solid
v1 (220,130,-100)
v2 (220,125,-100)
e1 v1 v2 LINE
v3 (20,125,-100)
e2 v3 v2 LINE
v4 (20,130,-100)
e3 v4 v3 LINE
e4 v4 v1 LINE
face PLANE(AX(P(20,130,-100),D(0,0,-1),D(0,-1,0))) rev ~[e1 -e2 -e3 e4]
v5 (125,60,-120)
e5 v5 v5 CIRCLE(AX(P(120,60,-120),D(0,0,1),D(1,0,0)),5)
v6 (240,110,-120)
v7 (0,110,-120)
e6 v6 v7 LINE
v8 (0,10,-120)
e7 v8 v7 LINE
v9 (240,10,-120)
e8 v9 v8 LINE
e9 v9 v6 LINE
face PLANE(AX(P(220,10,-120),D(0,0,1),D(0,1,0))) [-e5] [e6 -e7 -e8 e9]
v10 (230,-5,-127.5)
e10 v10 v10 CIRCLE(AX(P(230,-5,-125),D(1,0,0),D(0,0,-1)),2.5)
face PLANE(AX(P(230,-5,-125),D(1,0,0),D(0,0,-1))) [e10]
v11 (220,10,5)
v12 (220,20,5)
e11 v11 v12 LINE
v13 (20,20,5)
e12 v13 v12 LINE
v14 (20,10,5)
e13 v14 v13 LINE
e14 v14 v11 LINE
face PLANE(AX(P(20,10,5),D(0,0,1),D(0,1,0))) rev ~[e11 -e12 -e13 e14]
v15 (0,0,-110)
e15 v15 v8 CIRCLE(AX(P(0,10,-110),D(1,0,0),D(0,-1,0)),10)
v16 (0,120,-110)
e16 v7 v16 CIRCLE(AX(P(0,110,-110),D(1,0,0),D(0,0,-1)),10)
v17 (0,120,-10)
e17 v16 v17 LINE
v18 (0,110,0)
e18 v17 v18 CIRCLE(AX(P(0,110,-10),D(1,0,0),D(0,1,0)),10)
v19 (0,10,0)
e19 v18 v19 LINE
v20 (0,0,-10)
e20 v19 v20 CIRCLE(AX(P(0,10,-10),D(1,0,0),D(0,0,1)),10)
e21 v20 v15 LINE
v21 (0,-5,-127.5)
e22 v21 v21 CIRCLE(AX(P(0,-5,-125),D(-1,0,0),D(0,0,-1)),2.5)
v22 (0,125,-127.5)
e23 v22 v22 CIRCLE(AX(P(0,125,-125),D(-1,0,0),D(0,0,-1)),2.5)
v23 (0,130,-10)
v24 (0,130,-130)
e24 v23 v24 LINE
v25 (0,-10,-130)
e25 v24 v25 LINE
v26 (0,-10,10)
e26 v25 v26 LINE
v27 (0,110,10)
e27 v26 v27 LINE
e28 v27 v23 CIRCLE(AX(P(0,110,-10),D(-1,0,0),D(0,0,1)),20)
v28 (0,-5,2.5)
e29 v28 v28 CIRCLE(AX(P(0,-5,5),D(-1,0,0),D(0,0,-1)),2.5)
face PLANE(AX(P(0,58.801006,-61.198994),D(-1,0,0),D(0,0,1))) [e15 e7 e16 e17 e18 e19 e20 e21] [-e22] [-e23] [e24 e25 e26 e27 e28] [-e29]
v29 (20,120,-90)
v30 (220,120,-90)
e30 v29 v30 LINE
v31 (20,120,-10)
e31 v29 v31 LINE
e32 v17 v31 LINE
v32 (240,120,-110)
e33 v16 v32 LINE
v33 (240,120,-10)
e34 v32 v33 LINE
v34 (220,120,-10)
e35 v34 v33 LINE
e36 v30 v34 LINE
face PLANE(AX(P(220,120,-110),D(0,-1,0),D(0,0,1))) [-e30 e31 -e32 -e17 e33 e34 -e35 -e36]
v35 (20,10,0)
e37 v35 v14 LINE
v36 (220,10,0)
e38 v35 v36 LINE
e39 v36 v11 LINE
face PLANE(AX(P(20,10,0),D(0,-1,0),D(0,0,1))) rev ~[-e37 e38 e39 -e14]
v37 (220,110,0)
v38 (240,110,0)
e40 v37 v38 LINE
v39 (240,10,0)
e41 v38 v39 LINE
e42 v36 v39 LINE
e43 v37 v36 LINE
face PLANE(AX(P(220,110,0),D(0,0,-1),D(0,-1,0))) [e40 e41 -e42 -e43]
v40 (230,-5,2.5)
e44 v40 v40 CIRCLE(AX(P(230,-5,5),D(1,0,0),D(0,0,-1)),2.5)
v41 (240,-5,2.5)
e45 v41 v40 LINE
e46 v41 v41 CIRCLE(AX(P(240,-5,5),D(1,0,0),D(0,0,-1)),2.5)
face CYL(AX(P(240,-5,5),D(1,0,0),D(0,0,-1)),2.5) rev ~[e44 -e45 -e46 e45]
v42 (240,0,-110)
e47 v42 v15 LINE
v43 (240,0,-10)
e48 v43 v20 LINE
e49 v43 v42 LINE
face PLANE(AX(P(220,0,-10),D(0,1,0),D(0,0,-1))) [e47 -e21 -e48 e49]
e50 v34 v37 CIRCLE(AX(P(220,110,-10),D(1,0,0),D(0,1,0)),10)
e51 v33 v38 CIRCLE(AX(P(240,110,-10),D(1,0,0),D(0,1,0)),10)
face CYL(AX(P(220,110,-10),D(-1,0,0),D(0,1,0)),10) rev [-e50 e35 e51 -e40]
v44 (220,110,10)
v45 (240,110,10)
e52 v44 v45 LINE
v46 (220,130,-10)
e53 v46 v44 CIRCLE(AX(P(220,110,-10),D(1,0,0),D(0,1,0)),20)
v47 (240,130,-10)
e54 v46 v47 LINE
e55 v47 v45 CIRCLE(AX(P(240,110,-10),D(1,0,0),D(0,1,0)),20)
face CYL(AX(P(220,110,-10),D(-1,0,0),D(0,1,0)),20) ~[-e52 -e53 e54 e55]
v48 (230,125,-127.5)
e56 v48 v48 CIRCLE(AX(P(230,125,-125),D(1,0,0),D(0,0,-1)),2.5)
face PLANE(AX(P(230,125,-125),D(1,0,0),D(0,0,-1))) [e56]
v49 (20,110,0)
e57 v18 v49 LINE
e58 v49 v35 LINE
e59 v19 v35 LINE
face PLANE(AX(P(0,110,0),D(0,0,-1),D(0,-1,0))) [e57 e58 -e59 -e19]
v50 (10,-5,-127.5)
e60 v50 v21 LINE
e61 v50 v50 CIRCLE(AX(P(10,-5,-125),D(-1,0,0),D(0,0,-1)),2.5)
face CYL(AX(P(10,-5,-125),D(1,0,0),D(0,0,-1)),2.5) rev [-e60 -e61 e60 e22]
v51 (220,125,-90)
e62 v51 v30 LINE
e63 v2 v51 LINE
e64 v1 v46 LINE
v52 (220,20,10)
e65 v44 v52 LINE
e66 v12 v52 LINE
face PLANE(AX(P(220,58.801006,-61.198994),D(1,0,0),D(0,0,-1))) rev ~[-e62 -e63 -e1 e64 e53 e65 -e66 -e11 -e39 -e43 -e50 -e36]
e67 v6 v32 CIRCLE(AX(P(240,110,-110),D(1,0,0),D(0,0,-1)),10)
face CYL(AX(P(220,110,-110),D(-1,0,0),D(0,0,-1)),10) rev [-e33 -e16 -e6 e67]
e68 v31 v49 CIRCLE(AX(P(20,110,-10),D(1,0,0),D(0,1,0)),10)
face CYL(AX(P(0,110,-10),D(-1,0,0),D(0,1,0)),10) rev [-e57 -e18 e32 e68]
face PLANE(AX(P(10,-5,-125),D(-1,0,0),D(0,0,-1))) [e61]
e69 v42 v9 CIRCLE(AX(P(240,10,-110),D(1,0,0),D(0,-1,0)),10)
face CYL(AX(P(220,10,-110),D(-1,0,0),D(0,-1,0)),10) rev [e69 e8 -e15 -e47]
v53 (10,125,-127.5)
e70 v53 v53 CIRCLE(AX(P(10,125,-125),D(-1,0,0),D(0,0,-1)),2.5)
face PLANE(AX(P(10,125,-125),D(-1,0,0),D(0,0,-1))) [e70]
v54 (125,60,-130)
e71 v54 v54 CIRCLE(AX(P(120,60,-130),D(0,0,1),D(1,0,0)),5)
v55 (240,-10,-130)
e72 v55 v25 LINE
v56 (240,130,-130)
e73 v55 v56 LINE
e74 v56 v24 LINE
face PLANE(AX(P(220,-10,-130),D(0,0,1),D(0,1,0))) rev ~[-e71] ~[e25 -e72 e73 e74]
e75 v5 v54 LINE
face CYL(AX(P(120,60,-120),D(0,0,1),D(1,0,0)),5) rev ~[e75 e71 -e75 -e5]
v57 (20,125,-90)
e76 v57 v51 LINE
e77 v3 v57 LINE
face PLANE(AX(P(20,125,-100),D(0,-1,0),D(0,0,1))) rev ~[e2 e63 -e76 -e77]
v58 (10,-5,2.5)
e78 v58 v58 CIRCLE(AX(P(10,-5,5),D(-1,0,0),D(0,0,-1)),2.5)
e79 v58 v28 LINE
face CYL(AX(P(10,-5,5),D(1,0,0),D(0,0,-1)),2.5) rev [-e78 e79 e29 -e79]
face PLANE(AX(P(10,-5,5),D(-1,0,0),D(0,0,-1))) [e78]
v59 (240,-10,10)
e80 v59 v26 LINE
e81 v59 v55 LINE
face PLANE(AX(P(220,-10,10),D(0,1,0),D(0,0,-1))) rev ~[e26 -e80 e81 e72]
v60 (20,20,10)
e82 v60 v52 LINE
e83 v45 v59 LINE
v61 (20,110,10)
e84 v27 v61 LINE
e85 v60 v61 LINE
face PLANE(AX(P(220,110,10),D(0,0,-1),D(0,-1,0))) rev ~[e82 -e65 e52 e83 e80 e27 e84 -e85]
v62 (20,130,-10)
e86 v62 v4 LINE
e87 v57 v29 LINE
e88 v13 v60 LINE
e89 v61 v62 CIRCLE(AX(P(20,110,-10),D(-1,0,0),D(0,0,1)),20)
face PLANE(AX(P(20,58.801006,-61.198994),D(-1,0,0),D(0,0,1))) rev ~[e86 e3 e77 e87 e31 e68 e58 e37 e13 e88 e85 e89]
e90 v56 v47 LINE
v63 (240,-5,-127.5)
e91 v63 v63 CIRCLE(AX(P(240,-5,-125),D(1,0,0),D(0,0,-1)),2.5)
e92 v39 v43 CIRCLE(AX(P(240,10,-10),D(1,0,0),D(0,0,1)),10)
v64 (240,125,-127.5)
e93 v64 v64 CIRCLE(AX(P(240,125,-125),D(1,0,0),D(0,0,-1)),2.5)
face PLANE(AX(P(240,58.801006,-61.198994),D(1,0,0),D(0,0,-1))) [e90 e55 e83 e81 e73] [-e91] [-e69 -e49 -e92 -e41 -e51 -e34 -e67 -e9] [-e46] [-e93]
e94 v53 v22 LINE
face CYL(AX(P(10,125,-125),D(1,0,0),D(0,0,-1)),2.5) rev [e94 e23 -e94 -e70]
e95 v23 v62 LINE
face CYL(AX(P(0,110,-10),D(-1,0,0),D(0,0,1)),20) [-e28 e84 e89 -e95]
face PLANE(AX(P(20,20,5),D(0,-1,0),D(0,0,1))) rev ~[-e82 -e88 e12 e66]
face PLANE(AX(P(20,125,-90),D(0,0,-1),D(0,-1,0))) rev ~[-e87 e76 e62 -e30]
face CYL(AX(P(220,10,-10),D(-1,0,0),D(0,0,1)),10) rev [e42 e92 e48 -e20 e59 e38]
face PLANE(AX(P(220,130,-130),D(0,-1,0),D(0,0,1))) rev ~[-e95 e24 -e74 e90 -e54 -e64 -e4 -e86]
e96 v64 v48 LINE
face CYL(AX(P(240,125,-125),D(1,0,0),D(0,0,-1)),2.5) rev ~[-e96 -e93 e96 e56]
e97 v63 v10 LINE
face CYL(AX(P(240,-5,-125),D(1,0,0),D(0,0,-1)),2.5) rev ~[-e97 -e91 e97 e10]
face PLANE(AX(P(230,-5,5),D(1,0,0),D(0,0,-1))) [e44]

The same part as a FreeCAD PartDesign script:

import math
import FreeCAD as App
import Part
import Sketcher
from FreeCAD import Vector

doc = App.newDocument("Part")
body = doc.addObject("PartDesign::Body", "Body")

sketch1 = body.newObject("Sketcher::SketchObject", "Sketch")
sketch1.AttachmentSupport = (doc.getObject("YZ_Plane"), [""])
sketch1.MapMode = "FlatFace"
sketch1.addGeometry(Part.LineSegment(Vector(130, -130, 0), Vector(130, -10, 0)), False)
sketch1.addGeometry(Part.ArcOfCircle(Part.Circle(Vector(110, -10, 0), Vector(0, 0, 1), 20), math.radians(0), math.radians(90)), False)
sketch1.addGeometry(Part.LineSegment(Vector(110, 10, 0), Vector(-10, 10, 0)), False)
sketch1.addGeometry(Part.LineSegment(Vector(-10, 10, 0), Vector(-10, -130, 0)), False)
sketch1.addGeometry(Part.LineSegment(Vector(-10, -130, 0), Vector(130, -130, 0)), False)
sketch1.addGeometry(Part.ArcOfCircle(Part.Circle(Vector(10, -10, 0), Vector(0, 0, 1), 10), math.radians(90), math.radians(180)), False)
sketch1.addGeometry(Part.LineSegment(Vector(10, 0, 0), Vector(110, 0, 0)), False)
sketch1.addGeometry(Part.ArcOfCircle(Part.Circle(Vector(110, -10, 0), Vector(0, 0, 1), 10), math.radians(0), math.radians(90)), False)
sketch1.addGeometry(Part.LineSegment(Vector(120, -10, 0), Vector(120, -110, 0)), False)
sketch1.addGeometry(Part.ArcOfCircle(Part.Circle(Vector(110, -110, 0), Vector(0, 0, 1), 10), math.radians(-90), math.radians(0)), False)
sketch1.addGeometry(Part.LineSegment(Vector(110, -120, 0), Vector(10, -120, 0)), False)
sketch1.addGeometry(Part.ArcOfCircle(Part.Circle(Vector(10, -110, 0), Vector(0, 0, 1), 10), math.radians(180), math.radians(270)), False)
sketch1.addGeometry(Part.LineSegment(Vector(0, -110, 0), Vector(0, -10, 0)), False)
sketch1.addConstraint(Sketcher.Constraint("Tangent", 0, 2, 1, 1))
sketch1.addConstraint(Sketcher.Constraint("Tangent", 1, 2, 2, 1))
sketch1.addConstraint(Sketcher.Constraint("Coincident", 2, 2, 3, 1))
sketch1.addConstraint(Sketcher.Constraint("Coincident", 3, 2, 4, 1))
sketch1.addConstraint(Sketcher.Constraint("Coincident", 4, 2, 0, 1))
sketch1.addConstraint(Sketcher.Constraint("Tangent", 5, 1, 6, 1))
sketch1.addConstraint(Sketcher.Constraint("Tangent", 6, 2, 7, 2))
sketch1.addConstraint(Sketcher.Constraint("Tangent", 7, 1, 8, 1))
sketch1.addConstraint(Sketcher.Constraint("Tangent", 8, 2, 9, 2))
sketch1.addConstraint(Sketcher.Constraint("Tangent", 9, 1, 10, 1))
sketch1.addConstraint(Sketcher.Constraint("Tangent", 10, 2, 11, 2))
sketch1.addConstraint(Sketcher.Constraint("Tangent", 11, 1, 12, 1))
sketch1.addConstraint(Sketcher.Constraint("Tangent", 12, 2, 5, 2))
sketch1.addConstraint(Sketcher.Constraint("Vertical", 0))
sketch1.addConstraint(Sketcher.Constraint("Horizontal", 2))
sketch1.addConstraint(Sketcher.Constraint("Vertical", 3))
sketch1.addConstraint(Sketcher.Constraint("Horizontal", 4))
sketch1.addConstraint(Sketcher.Constraint("Horizontal", 6))
sketch1.addConstraint(Sketcher.Constraint("Vertical", 8))
sketch1.addConstraint(Sketcher.Constraint("Horizontal", 10))
sketch1.addConstraint(Sketcher.Constraint("Vertical", 12))
sketch1.addConstraint(Sketcher.Constraint("Coincident", 7, 3, 1, 3))
sketch1.addConstraint(Sketcher.Constraint("Equal", 5, 7))
sketch1.addConstraint(Sketcher.Constraint("Equal", 7, 9))
sketch1.addConstraint(Sketcher.Constraint("Equal", 9, 11))
sketch1.addConstraint(Sketcher.Constraint("PointOnObject", 5, 1, -1))
sketch1.addConstraint(Sketcher.Constraint("PointOnObject", 11, 1, -2))
sketch1.addConstraint(Sketcher.Constraint("Equal", 2, 0))
sketch1.addConstraint(Sketcher.Constraint("Equal", 10, 8))
sketch1.addConstraint(Sketcher.Constraint("Radius", 1, 20.0))
sketch1.addConstraint(Sketcher.Constraint("Radius", 5, 10.0))
sketch1.addConstraint(Sketcher.Constraint("DistanceX", 2, 2, 2, 1, 120.0))
sketch1.addConstraint(Sketcher.Constraint("DistanceX", 6, 1, 6, 2, 100.0))
pad1 = body.newObject("PartDesign::Pad", "Pad")
pad1.Profile = sketch1
pad1.Length = 20

sketch2 = body.newObject("Sketcher::SketchObject", "Sketch001")
sketch2.AttachmentSupport = (doc.getObject("YZ_Plane"), [""])
sketch2.MapMode = "FlatFace"
sketch2.AttachmentOffset = App.Placement(Vector(0, 0, 20), App.Rotation())
sketch2.addGeometry(Part.LineSegment(Vector(130, -130, 0), Vector(130, -100, 0)), False)
sketch2.addGeometry(Part.LineSegment(Vector(130, -100, 0), Vector(125, -100, 0)), False)
sketch2.addGeometry(Part.LineSegment(Vector(125, -100, 0), Vector(125, -90, 0)), False)
sketch2.addGeometry(Part.LineSegment(Vector(125, -90, 0), Vector(120, -90, 0)), False)
sketch2.addGeometry(Part.LineSegment(Vector(120, -90, 0), Vector(120, -110, 0)), False)
sketch2.addGeometry(Part.ArcOfCircle(Part.Circle(Vector(110, -110, 0), Vector(0, 0, 1), 10), math.radians(-90), math.radians(0)), False)
sketch2.addGeometry(Part.LineSegment(Vector(110, -120, 0), Vector(10, -120, 0)), False)
sketch2.addGeometry(Part.ArcOfCircle(Part.Circle(Vector(10, -110, 0), Vector(0, 0, 1), 10), math.radians(180), math.radians(270)), False)
sketch2.addGeometry(Part.LineSegment(Vector(0, -110, 0), Vector(0, -10, 0)), False)
sketch2.addGeometry(Part.ArcOfCircle(Part.Circle(Vector(10, -10, 0), Vector(0, 0, 1), 10), math.radians(90), math.radians(180)), False)
sketch2.addGeometry(Part.LineSegment(Vector(10, 0, 0), Vector(10, 5, 0)), False)
sketch2.addGeometry(Part.LineSegment(Vector(10, 5, 0), Vector(20, 5, 0)), False)
sketch2.addGeometry(Part.LineSegment(Vector(20, 5, 0), Vector(20, 10, 0)), False)
sketch2.addGeometry(Part.LineSegment(Vector(20, 10, 0), Vector(-10, 10, 0)), False)
sketch2.addGeometry(Part.LineSegment(Vector(-10, 10, 0), Vector(-10, -130, 0)), False)
sketch2.addGeometry(Part.LineSegment(Vector(-10, -130, 0), Vector(130, -130, 0)), False)
sketch2.addConstraint(Sketcher.Constraint("Coincident", 0, 2, 1, 1))
sketch2.addConstraint(Sketcher.Constraint("Coincident", 1, 2, 2, 1))
sketch2.addConstraint(Sketcher.Constraint("Coincident", 2, 2, 3, 1))
sketch2.addConstraint(Sketcher.Constraint("Coincident", 3, 2, 4, 1))
sketch2.addConstraint(Sketcher.Constraint("Tangent", 4, 2, 5, 2))
sketch2.addConstraint(Sketcher.Constraint("Tangent", 5, 1, 6, 1))
sketch2.addConstraint(Sketcher.Constraint("Tangent", 6, 2, 7, 2))
sketch2.addConstraint(Sketcher.Constraint("Tangent", 7, 1, 8, 1))
sketch2.addConstraint(Sketcher.Constraint("Tangent", 8, 2, 9, 2))
sketch2.addConstraint(Sketcher.Constraint("Coincident", 9, 1, 10, 1))
sketch2.addConstraint(Sketcher.Constraint("Coincident", 10, 2, 11, 1))
sketch2.addConstraint(Sketcher.Constraint("Coincident", 11, 2, 12, 1))
sketch2.addConstraint(Sketcher.Constraint("Coincident", 12, 2, 13, 1))
sketch2.addConstraint(Sketcher.Constraint("Coincident", 13, 2, 14, 1))
sketch2.addConstraint(Sketcher.Constraint("Coincident", 14, 2, 15, 1))
sketch2.addConstraint(Sketcher.Constraint("Coincident", 15, 2, 0, 1))
sketch2.addConstraint(Sketcher.Constraint("Vertical", 0))
sketch2.addConstraint(Sketcher.Constraint("Horizontal", 1))
sketch2.addConstraint(Sketcher.Constraint("Vertical", 2))
sketch2.addConstraint(Sketcher.Constraint("Horizontal", 3))
sketch2.addConstraint(Sketcher.Constraint("Vertical", 4))
sketch2.addConstraint(Sketcher.Constraint("Horizontal", 6))
sketch2.addConstraint(Sketcher.Constraint("Vertical", 8))
sketch2.addConstraint(Sketcher.Constraint("Vertical", 10))
sketch2.addConstraint(Sketcher.Constraint("Horizontal", 11))
sketch2.addConstraint(Sketcher.Constraint("Vertical", 12))
sketch2.addConstraint(Sketcher.Constraint("Horizontal", 13))
sketch2.addConstraint(Sketcher.Constraint("Vertical", 14))
sketch2.addConstraint(Sketcher.Constraint("Horizontal", 15))
sketch2.addConstraint(Sketcher.Constraint("Equal", 5, 7))
sketch2.addConstraint(Sketcher.Constraint("Equal", 7, 9))
sketch2.addConstraint(Sketcher.Constraint("PointOnObject", 7, 1, -2))
sketch2.addConstraint(Sketcher.Constraint("PointOnObject", 9, 1, -1))
sketch2.addConstraint(Sketcher.Constraint("Vertical", 6, 2, 9, 1))
sketch2.addConstraint(Sketcher.Constraint("Equal", 1, 3))
sketch2.addConstraint(Sketcher.Constraint("Equal", 13, 0))
sketch2.addConstraint(Sketcher.Constraint("Equal", 11, 2))
sketch2.addConstraint(Sketcher.Constraint("Equal", 6, 8))
sketch2.addConstraint(Sketcher.Constraint("Equal", 3, 10))
sketch2.addConstraint(Sketcher.Constraint("Equal", 10, 12))
sketch2.addConstraint(Sketcher.Constraint("Equal", 15, 14))
sketch2.addConstraint(Sketcher.Constraint("Radius", 5, 10.0))
sketch2.addConstraint(Sketcher.Constraint("DistanceX", 1, 2, 1, 1, 5.0))
sketch2.addConstraint(Sketcher.Constraint("DistanceX", 6, 2, 6, 1, 100.0))
sketch2.addConstraint(Sketcher.Constraint("DistanceX", 11, 1, 11, 2, 10.0))
sketch2.addConstraint(Sketcher.Constraint("DistanceX", 13, 2, 13, 1, 30.0))
pad2 = body.newObject("PartDesign::Pad", "Pad001")
pad2.Profile = sketch2
pad2.Length = 200

sketch3 = body.newObject("Sketcher::SketchObject", "Sketch002")
sketch3.AttachmentSupport = (doc.getObject("YZ_Plane"), [""])
sketch3.MapMode = "FlatFace"
sketch3.AttachmentOffset = App.Placement(Vector(0, 0, 220), App.Rotation())
sketch3.addGeometry(Part.LineSegment(Vector(130, -130, 0), Vector(130, -10, 0)), False)
sketch3.addGeometry(Part.ArcOfCircle(Part.Circle(Vector(110, -10, 0), Vector(0, 0, 1), 20), math.radians(0), math.radians(90)), False)
sketch3.addGeometry(Part.LineSegment(Vector(110, 10, 0), Vector(-10, 10, 0)), False)
sketch3.addGeometry(Part.LineSegment(Vector(-10, 10, 0), Vector(-10, -130, 0)), False)
sketch3.addGeometry(Part.LineSegment(Vector(-10, -130, 0), Vector(130, -130, 0)), False)
sketch3.addGeometry(Part.LineSegment(Vector(10, 0, 0), Vector(110, 0, 0)), False)
sketch3.addGeometry(Part.ArcOfCircle(Part.Circle(Vector(110, -10, 0), Vector(0, 0, 1), 10), math.radians(0), math.radians(90)), False)
sketch3.addGeometry(Part.LineSegment(Vector(120, -10, 0), Vector(120, -110, 0)), False)
sketch3.addGeometry(Part.ArcOfCircle(Part.Circle(Vector(110, -110, 0), Vector(0, 0, 1), 10), math.radians(-90), math.radians(0)), False)
sketch3.addGeometry(Part.LineSegment(Vector(110, -120, 0), Vector(10, -120, 0)), False)
sketch3.addGeometry(Part.ArcOfCircle(Part.Circle(Vector(10, -110, 0), Vector(0, 0, 1), 10), math.radians(180), math.radians(270)), False)
sketch3.addGeometry(Part.LineSegment(Vector(0, -110, 0), Vector(0, -10, 0)), False)
sketch3.addGeometry(Part.ArcOfCircle(Part.Circle(Vector(10, -10, 0), Vector(0, 0, 1), 10), math.radians(90), math.radians(180)), False)
sketch3.addConstraint(Sketcher.Constraint("Tangent", 0, 2, 1, 1))
sketch3.addConstraint(Sketcher.Constraint("Tangent", 1, 2, 2, 1))
sketch3.addConstraint(Sketcher.Constraint("Coincident", 2, 2, 3, 1))
sketch3.addConstraint(Sketcher.Constraint("Coincident", 3, 2, 4, 1))
sketch3.addConstraint(Sketcher.Constraint("Coincident", 4, 2, 0, 1))
sketch3.addConstraint(Sketcher.Constraint("Tangent", 5, 2, 6, 2))
sketch3.addConstraint(Sketcher.Constraint("Tangent", 6, 1, 7, 1))
sketch3.addConstraint(Sketcher.Constraint("Tangent", 7, 2, 8, 2))
sketch3.addConstraint(Sketcher.Constraint("Tangent", 8, 1, 9, 1))
sketch3.addConstraint(Sketcher.Constraint("Tangent", 9, 2, 10, 2))
sketch3.addConstraint(Sketcher.Constraint("Tangent", 10, 1, 11, 1))
sketch3.addConstraint(Sketcher.Constraint("Tangent", 11, 2, 12, 2))
sketch3.addConstraint(Sketcher.Constraint("Tangent", 12, 1, 5, 1))
sketch3.addConstraint(Sketcher.Constraint("Vertical", 0))
sketch3.addConstraint(Sketcher.Constraint("Horizontal", 2))
sketch3.addConstraint(Sketcher.Constraint("Vertical", 3))
sketch3.addConstraint(Sketcher.Constraint("Horizontal", 4))
sketch3.addConstraint(Sketcher.Constraint("Horizontal", 5))
sketch3.addConstraint(Sketcher.Constraint("Vertical", 7))
sketch3.addConstraint(Sketcher.Constraint("Horizontal", 9))
sketch3.addConstraint(Sketcher.Constraint("Vertical", 11))
sketch3.addConstraint(Sketcher.Constraint("Coincident", 6, 3, 1, 3))
sketch3.addConstraint(Sketcher.Constraint("Equal", 6, 8))
sketch3.addConstraint(Sketcher.Constraint("Equal", 8, 10))
sketch3.addConstraint(Sketcher.Constraint("Equal", 10, 12))
sketch3.addConstraint(Sketcher.Constraint("PointOnObject", 5, 2, -1))
sketch3.addConstraint(Sketcher.Constraint("PointOnObject", 10, 1, -2))
sketch3.addConstraint(Sketcher.Constraint("Equal", 2, 0))
sketch3.addConstraint(Sketcher.Constraint("Equal", 9, 7))
sketch3.addConstraint(Sketcher.Constraint("Radius", 1, 20.0))
sketch3.addConstraint(Sketcher.Constraint("Radius", 6, 10.0))
sketch3.addConstraint(Sketcher.Constraint("DistanceX", 2, 2, 2, 1, 120.0))
sketch3.addConstraint(Sketcher.Constraint("DistanceX", 5, 1, 5, 2, 100.0))
pad3 = body.newObject("PartDesign::Pad", "Pad002")
pad3.Profile = sketch3
pad3.Length = 20

sketch4 = body.newObject("Sketcher::SketchObject", "Sketch003")
sketch4.AttachmentSupport = (doc.getObject("YZ_Plane"), [""])
sketch4.MapMode = "FlatFace"
sketch4.AttachmentOffset = App.Placement(Vector(0, 0, 240), App.Rotation())
sketch4.addGeometry(Part.Circle(Vector(-5, 5, 0), Vector(0, 0, 1), 2.5), False)
sketch4.addGeometry(Part.Circle(Vector(-5, -125, 0), Vector(0, 0, 1), 2.5), False)
sketch4.addGeometry(Part.Circle(Vector(125, -125, 0), Vector(0, 0, 1), 2.5), False)
sketch4.addConstraint(Sketcher.Constraint("Equal", 0, 1))
sketch4.addConstraint(Sketcher.Constraint("Equal", 1, 2))
sketch4.addConstraint(Sketcher.Constraint("Horizontal", 1, 3, 2, 3))
sketch4.addConstraint(Sketcher.Constraint("Vertical", 0, 3, 1, 3))
sketch4.addConstraint(Sketcher.Constraint("Diameter", 0, 5.0))
sketch4.addConstraint(Sketcher.Constraint("DistanceX", 0, 3, -1, 1, 5.0))
sketch4.addConstraint(Sketcher.Constraint("DistanceY", -1, 1, 0, 3, 5.0))
sketch4.addConstraint(Sketcher.Constraint("DistanceY", 1, 3, -1, 1, 125.0))
sketch4.addConstraint(Sketcher.Constraint("DistanceX", -1, 1, 2, 3, 125.0))
pocket1 = body.newObject("PartDesign::Pocket", "Pocket")
pocket1.Profile = sketch4
pocket1.Length = 10

sketch5 = body.newObject("Sketcher::SketchObject", "Sketch004")
sketch5.AttachmentSupport = (doc.getObject("YZ_Plane"), [""])
sketch5.MapMode = "FlatFace"
sketch5.AttachmentOffset = App.Placement(Vector(0, 0, 10), App.Rotation())
sketch5.addGeometry(Part.Circle(Vector(125, -125, 0), Vector(0, 0, 1), 2.5), False)
sketch5.addGeometry(Part.Circle(Vector(-5, -125, 0), Vector(0, 0, 1), 2.5), False)
sketch5.addGeometry(Part.Circle(Vector(-5, 5, 0), Vector(0, 0, 1), 2.5), False)
sketch5.addConstraint(Sketcher.Constraint("Equal", 0, 1))
sketch5.addConstraint(Sketcher.Constraint("Equal", 1, 2))
sketch5.addConstraint(Sketcher.Constraint("Horizontal", 0, 3, 1, 3))
sketch5.addConstraint(Sketcher.Constraint("Vertical", 1, 3, 2, 3))
sketch5.addConstraint(Sketcher.Constraint("Diameter", 0, 5.0))
sketch5.addConstraint(Sketcher.Constraint("DistanceX", -1, 1, 0, 3, 125.0))
sketch5.addConstraint(Sketcher.Constraint("DistanceY", 0, 3, -1, 1, 125.0))
sketch5.addConstraint(Sketcher.Constraint("DistanceX", 1, 3, -1, 1, 5.0))
sketch5.addConstraint(Sketcher.Constraint("DistanceY", -1, 1, 2, 3, 5.0))
pocket2 = body.newObject("PartDesign::Pocket", "Pocket001")
pocket2.Profile = sketch5
pocket2.Length = 10

sketch6 = body.newObject("Sketcher::SketchObject", "Sketch005")
sketch6.AttachmentSupport = (doc.getObject("XY_Plane"), [""])
sketch6.MapMode = "FlatFace"
sketch6.AttachmentOffset = App.Placement(Vector(0, 0, -120), App.Rotation())
sketch6.addGeometry(Part.Circle(Vector(120, 60, 0), Vector(0, 0, 1), 5), False)
sketch6.addConstraint(Sketcher.Constraint("Diameter", 0, 10.0))
sketch6.addConstraint(Sketcher.Constraint("DistanceX", -1, 1, 0, 3, 120.0))
sketch6.addConstraint(Sketcher.Constraint("DistanceY", -1, 1, 0, 3, 60.0))
pocket3 = body.newObject("PartDesign::Pocket", "Pocket002")
pocket3.Profile = sketch6
pocket3.Type = "UpToFirst"

doc.recompute()
